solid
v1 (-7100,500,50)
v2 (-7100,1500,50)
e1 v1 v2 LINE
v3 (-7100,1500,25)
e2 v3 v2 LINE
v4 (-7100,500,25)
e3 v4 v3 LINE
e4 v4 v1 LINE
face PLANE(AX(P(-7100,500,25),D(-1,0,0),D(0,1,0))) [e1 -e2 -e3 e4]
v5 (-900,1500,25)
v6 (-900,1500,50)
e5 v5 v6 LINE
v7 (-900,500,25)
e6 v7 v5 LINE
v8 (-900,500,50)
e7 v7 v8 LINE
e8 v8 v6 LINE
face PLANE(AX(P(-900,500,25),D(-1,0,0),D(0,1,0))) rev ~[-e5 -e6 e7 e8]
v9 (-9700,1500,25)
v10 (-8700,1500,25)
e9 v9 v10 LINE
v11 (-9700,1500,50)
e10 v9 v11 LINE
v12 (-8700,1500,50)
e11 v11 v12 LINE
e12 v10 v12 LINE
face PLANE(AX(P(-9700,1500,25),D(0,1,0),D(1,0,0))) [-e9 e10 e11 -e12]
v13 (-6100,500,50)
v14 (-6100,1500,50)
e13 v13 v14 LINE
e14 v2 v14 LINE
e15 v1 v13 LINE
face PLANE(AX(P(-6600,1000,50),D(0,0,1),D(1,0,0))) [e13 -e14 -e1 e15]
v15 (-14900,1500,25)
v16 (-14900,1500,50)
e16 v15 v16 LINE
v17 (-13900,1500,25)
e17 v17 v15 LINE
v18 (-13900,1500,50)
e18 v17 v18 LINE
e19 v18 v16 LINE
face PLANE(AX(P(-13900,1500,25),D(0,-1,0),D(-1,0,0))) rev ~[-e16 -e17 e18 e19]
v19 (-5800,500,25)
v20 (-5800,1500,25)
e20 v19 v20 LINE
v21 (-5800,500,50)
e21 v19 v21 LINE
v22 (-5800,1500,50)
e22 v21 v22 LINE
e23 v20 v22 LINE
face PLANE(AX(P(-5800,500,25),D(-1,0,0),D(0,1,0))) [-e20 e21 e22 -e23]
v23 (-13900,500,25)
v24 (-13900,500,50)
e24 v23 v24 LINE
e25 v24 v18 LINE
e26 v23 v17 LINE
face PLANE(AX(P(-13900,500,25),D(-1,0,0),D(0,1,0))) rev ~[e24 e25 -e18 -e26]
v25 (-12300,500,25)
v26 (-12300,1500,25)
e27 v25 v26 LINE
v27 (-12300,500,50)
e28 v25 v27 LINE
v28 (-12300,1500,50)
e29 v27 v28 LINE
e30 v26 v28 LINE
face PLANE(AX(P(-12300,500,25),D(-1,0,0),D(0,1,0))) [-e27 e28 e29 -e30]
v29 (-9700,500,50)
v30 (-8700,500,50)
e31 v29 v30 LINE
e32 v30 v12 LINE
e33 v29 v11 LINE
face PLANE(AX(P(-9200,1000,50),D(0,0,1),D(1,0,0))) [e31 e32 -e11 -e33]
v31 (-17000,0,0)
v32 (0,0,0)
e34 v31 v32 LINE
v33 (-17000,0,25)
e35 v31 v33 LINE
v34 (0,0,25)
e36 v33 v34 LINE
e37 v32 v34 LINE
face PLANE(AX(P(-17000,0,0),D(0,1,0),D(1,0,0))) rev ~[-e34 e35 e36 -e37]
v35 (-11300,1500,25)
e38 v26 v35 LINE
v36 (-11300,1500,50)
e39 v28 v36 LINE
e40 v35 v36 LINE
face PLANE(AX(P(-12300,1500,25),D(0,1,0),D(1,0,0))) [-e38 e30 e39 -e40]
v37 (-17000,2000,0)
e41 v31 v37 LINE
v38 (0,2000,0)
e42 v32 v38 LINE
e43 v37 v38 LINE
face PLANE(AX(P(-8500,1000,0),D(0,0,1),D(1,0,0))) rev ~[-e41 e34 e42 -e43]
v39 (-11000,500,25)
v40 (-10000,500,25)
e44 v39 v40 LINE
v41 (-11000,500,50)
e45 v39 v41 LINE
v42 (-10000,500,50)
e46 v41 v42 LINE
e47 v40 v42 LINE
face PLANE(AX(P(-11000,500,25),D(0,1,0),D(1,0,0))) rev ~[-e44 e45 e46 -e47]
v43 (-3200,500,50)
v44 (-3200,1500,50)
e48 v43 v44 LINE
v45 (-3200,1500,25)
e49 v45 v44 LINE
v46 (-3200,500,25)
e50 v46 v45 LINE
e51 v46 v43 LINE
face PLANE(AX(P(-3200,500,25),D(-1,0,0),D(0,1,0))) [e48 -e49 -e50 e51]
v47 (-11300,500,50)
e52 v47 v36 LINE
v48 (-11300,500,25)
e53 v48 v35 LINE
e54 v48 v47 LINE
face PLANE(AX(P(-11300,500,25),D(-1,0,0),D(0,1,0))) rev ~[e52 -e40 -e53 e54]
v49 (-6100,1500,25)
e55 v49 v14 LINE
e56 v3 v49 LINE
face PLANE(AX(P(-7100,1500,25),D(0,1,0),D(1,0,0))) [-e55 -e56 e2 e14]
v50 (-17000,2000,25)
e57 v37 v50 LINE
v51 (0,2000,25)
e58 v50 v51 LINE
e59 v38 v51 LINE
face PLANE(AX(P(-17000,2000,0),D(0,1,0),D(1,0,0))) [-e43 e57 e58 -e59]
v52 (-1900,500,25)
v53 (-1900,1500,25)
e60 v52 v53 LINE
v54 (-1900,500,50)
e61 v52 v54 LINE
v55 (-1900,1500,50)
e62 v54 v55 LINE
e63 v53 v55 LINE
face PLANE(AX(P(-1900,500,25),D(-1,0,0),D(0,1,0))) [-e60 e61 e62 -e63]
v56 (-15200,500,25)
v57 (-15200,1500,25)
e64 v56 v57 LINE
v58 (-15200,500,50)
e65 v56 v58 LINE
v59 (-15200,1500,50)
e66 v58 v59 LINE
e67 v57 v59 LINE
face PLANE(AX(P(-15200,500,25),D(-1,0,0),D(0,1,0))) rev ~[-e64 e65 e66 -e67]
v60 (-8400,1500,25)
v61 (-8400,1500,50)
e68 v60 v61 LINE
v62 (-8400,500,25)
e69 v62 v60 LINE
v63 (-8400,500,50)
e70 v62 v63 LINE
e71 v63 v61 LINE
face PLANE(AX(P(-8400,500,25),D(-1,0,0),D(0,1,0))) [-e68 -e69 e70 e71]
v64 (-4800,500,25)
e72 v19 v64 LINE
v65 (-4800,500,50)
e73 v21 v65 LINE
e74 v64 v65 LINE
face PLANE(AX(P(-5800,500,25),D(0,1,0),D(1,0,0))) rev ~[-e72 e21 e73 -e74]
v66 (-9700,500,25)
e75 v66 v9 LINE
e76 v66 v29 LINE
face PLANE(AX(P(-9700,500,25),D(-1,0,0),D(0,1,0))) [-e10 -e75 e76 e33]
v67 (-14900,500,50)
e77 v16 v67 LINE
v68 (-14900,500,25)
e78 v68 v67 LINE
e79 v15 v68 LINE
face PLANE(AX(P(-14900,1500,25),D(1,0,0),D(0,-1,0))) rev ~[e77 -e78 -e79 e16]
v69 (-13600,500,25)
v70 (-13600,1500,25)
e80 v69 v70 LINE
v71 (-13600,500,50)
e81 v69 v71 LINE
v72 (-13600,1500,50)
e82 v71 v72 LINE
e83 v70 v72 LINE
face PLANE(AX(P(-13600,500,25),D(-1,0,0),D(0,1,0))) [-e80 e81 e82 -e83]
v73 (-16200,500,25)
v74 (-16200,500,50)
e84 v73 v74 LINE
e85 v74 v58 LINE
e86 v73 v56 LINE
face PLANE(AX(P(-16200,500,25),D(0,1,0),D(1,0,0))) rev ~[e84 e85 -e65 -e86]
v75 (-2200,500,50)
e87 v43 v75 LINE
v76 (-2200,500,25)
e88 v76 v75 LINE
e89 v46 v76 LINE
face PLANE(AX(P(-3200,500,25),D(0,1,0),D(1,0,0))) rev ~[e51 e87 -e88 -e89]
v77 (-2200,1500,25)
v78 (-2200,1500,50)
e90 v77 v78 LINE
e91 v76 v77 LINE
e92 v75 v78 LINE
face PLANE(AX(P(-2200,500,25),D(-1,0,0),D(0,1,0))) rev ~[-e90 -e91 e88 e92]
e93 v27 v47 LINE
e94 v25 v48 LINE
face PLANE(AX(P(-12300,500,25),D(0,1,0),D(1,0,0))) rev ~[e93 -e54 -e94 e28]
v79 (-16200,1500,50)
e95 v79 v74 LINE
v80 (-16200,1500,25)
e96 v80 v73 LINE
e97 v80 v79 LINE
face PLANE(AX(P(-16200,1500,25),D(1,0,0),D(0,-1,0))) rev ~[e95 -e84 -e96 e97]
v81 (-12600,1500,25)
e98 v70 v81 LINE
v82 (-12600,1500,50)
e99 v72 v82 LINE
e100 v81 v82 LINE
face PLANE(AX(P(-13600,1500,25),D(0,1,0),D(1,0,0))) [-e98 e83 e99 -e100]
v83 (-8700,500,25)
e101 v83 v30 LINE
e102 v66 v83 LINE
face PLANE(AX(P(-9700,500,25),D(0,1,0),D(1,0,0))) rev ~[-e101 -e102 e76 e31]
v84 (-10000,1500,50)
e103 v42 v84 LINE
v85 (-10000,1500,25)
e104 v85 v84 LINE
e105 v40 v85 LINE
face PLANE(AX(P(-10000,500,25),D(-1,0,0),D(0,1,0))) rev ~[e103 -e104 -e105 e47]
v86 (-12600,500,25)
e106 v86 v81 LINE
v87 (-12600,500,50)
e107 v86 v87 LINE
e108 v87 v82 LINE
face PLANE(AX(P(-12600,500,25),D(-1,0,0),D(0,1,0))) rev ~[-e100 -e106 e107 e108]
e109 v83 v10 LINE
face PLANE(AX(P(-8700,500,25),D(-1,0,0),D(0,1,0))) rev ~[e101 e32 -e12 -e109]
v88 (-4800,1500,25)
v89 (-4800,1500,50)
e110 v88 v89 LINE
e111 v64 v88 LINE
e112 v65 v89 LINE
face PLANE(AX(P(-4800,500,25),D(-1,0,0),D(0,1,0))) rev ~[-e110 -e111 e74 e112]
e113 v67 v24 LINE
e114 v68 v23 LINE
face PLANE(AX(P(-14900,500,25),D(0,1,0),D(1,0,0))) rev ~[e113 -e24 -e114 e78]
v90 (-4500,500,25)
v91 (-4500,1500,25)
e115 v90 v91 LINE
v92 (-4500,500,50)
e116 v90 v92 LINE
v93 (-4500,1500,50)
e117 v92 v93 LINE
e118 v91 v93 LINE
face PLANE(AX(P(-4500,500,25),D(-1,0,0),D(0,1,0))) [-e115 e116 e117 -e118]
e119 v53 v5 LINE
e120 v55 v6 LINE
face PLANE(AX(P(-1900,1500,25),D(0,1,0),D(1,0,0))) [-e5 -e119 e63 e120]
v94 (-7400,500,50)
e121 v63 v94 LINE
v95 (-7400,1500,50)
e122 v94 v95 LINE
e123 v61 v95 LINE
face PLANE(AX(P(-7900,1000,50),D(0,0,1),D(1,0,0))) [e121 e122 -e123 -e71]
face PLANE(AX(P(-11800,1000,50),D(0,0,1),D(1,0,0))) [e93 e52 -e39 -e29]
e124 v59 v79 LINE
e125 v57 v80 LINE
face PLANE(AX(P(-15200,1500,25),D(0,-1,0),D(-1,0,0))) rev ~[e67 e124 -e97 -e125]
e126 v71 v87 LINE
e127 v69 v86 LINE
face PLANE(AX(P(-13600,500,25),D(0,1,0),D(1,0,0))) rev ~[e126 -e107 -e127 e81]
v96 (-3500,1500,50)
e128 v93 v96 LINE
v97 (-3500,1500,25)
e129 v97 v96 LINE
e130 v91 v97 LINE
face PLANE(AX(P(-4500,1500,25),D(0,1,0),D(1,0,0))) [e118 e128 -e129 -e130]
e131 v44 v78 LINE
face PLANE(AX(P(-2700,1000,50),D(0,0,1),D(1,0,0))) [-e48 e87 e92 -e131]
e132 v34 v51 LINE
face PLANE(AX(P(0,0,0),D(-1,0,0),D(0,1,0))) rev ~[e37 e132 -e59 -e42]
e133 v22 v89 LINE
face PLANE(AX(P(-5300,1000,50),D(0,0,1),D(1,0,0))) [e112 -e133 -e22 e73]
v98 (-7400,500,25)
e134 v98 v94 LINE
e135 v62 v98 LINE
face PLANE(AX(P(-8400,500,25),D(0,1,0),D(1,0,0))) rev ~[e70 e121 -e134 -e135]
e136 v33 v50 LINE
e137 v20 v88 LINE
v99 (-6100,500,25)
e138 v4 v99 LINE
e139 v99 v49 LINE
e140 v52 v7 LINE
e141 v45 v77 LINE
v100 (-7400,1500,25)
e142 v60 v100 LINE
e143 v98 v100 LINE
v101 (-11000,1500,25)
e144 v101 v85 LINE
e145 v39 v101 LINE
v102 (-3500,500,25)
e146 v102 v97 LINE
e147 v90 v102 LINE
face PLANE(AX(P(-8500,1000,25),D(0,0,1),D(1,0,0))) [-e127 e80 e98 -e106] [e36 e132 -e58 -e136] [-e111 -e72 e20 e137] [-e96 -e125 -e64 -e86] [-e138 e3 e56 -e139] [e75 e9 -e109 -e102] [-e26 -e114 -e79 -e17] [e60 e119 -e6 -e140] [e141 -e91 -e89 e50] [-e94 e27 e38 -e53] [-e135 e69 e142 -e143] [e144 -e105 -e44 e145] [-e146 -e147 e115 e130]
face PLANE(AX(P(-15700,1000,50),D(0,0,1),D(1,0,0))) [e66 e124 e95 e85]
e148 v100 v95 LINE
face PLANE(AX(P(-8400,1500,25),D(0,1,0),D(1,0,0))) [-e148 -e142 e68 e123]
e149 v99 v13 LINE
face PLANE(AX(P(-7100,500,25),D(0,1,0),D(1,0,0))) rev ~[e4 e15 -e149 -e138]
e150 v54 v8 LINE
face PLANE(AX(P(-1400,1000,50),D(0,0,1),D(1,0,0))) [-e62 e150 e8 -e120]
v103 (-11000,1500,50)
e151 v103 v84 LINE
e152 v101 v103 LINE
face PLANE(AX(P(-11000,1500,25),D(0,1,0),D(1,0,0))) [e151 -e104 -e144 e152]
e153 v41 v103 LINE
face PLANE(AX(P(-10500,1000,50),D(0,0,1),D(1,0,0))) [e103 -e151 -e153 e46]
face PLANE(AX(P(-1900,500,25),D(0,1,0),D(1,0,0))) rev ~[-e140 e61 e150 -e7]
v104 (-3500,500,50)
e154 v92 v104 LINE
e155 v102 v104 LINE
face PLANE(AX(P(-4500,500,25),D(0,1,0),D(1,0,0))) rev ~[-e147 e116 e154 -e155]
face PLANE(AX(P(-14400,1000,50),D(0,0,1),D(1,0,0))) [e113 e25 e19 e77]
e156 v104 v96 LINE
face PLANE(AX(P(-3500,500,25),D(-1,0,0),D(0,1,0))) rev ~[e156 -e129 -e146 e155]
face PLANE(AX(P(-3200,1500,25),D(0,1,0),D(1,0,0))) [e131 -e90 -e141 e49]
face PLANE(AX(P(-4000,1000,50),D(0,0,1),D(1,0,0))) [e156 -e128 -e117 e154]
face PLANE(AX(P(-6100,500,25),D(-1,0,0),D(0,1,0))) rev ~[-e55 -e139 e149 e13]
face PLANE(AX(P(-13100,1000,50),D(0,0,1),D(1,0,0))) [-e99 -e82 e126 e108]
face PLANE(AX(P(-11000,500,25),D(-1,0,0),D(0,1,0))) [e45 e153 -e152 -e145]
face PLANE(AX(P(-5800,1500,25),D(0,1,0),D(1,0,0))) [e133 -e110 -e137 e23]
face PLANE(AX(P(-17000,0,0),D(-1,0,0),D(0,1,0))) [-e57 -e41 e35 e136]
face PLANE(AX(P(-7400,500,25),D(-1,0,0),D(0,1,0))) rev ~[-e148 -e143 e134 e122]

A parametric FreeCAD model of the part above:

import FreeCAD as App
import Part
import Sketcher
Q = App.Units.Quantity


def add_polygon(sketch, points):
    """Adds a closed chain of lines whose ends are joined by coincident constraints."""
    first, n = sketch.GeometryCount, len(points)
    for a, b in zip(points, points[1:] + points[:1]):
        sketch.addGeometry(Part.LineSegment(App.Vector(*a, 0), App.Vector(*b, 0)), False)
    for i in range(n):
        sketch.addConstraint(Sketcher.Constraint("Coincident", first + i, 2, first + (i + 1) % n, 1))

doc = App.newDocument("Part")
body = doc.addObject("PartDesign::Body", "Body")

sketch1 = body.newObject("Sketcher::SketchObject", "Sketch")
sketch1.AttachmentSupport = (doc.getObject("XY_Plane"), [""])
sketch1.MapMode = "FlatFace"
add_polygon(sketch1, [(-17000, 2000), (-17000, 0), (0, 0), (0, 2000)])
sketch1.addConstraint([
    Sketcher.Constraint("Vertical", 0),
    Sketcher.Constraint("Horizontal", 1),
    Sketcher.Constraint("Vertical", 2),
    Sketcher.Constraint("Horizontal", 3),
    Sketcher.Constraint("Coincident", 1, 2, -1, 1),
    Sketcher.Constraint("DistanceX", 1, 1, 1, 2, Q("17000 mm")),
    Sketcher.Constraint("DistanceY", 0, 2, 0, 1, Q("2000 mm")),
])
pad1 = body.newObject("PartDesign::Pad", "Pad")
pad1.Profile = sketch1
pad1.Length = 25

sketch2 = body.newObject("Sketcher::SketchObject", "Sketch001")
sketch2.AttachmentSupport = (doc.getObject("XY_Plane"), [""])
sketch2.MapMode = "FlatFace"
sketch2.AttachmentOffset = App.Placement(App.Vector(0, 0, 25), App.Rotation())
add_polygon(sketch2, [(-16200, 1500), (-16200, 500), (-15200, 500), (-15200, 1500)])
add_polygon(sketch2, [(-14900, 1500), (-14900, 500), (-13900, 500), (-13900, 1500)])
add_polygon(sketch2, [(-13600, 1500), (-13600, 500), (-12600, 500), (-12600, 1500)])
add_polygon(sketch2, [(-12300, 1500), (-12300, 500), (-11300, 500), (-11300, 1500)])
add_polygon(sketch2, [(-11000, 1500), (-11000, 500), (-10000, 500), (-10000, 1500)])
add_polygon(sketch2, [(-9700, 1500), (-9700, 500), (-8700, 500), (-8700, 1500)])
add_polygon(sketch2, [(-8400, 1500), (-8400, 500), (-7400, 500), (-7400, 1500)])
add_polygon(sketch2, [(-7100, 1500), (-7100, 500), (-6100, 500), (-6100, 1500)])
add_polygon(sketch2, [(-5800, 1500), (-5800, 500), (-4800, 500), (-4800, 1500)])
add_polygon(sketch2, [(-4500, 1500), (-4500, 500), (-3500, 500), (-3500, 1500)])
add_polygon(sketch2, [(-3200, 1500), (-3200, 500), (-2200, 500), (-2200, 1500)])
add_polygon(sketch2, [(-1900, 1500), (-1900, 500), (-900, 500), (-900, 1500)])
sketch2.addConstraint([
    Sketcher.Constraint("Vertical", 0),
    Sketcher.Constraint("Horizontal", 1),
    Sketcher.Constraint("Vertical", 2),
    Sketcher.Constraint("Horizontal", 3),
    Sketcher.Constraint("Vertical", 4),
    Sketcher.Constraint("Horizontal", 5),
    Sketcher.Constraint("Vertical", 6),
    Sketcher.Constraint("Horizontal", 7),
    Sketcher.Constraint("Vertical", 8),
    Sketcher.Constraint("Horizontal", 9),
    Sketcher.Constraint("Vertical", 10),
    Sketcher.Constraint("Horizontal", 11),
    Sketcher.Constraint("Vertical", 12),
    Sketcher.Constraint("Horizontal", 13),
    Sketcher.Constraint("Vertical", 14),
    Sketcher.Constraint("Horizontal", 15),
    Sketcher.Constraint("Vertical", 16),
    Sketcher.Constraint("Horizontal", 17),
    Sketcher.Constraint("Vertical", 18),
    Sketcher.Constraint("Horizontal", 19),
    Sketcher.Constraint("Vertical", 20),
    Sketcher.Constraint("Horizontal", 21),
    Sketcher.Constraint("Vertical", 22),
    Sketcher.Constraint("Horizontal", 23),
    Sketcher.Constraint("Vertical", 24),
    Sketcher.Constraint("Horizontal", 25),
    Sketcher.Constraint("Vertical", 26),
    Sketcher.Constraint("Horizontal", 27),
    Sketcher.Constraint("Vertical", 28),
    Sketcher.Constraint("Horizontal", 29),
    Sketcher.Constraint("Vertical", 30),
    Sketcher.Constraint("Horizontal", 31),
    Sketcher.Constraint("Vertical", 32),
    Sketcher.Constraint("Horizontal", 33),
    Sketcher.Constraint("Vertical", 34),
    Sketcher.Constraint("Horizontal", 35),
    Sketcher.Constraint("Vertical", 36),
    Sketcher.Constraint("Horizontal", 37),
    Sketcher.Constraint("Vertical", 38),
    Sketcher.Constraint("Horizontal", 39),
    Sketcher.Constraint("Vertical", 40),
    Sketcher.Constraint("Horizontal", 41),
    Sketcher.Constraint("Vertical", 42),
    Sketcher.Constraint("Horizontal", 43),
    Sketcher.Constraint("Vertical", 44),
    Sketcher.Constraint("Horizontal", 45),
    Sketcher.Constraint("Vertical", 46),
    Sketcher.Constraint("Horizontal", 47),
    Sketcher.Constraint("Horizontal", 1, 2, 4, 2),
    Sketcher.Constraint("Horizontal", 3, 2, 6, 2),
    Sketcher.Constraint("Horizontal", 5, 2, 8, 2),
    Sketcher.Constraint("Horizontal", 7, 2, 10, 2),
    Sketcher.Constraint("Horizontal", 9, 2, 12, 2),
    Sketcher.Constraint("Horizontal", 11, 2, 14, 2),
    Sketcher.Constraint("Horizontal", 13, 2, 16, 2),
    Sketcher.Constraint("Horizontal", 15, 2, 18, 2),
    Sketcher.Constraint("Horizontal", 17, 2, 20, 2),
    Sketcher.Constraint("Horizontal", 19, 2, 22, 2),
    Sketcher.Constraint("Horizontal", 21, 2, 24, 2),
    Sketcher.Constraint("Horizontal", 23, 2, 26, 2),
    Sketcher.Constraint("Horizontal", 25, 2, 28, 2),
    Sketcher.Constraint("Horizontal", 27, 2, 30, 2),
    Sketcher.Constraint("Horizontal", 29, 2, 32, 2),
    Sketcher.Constraint("Horizontal", 31, 2, 34, 2),
    Sketcher.Constraint("Horizontal", 33, 2, 36, 2),
    Sketcher.Constraint("Horizontal", 35, 2, 38, 2),
    Sketcher.Constraint("Horizontal", 37, 2, 40, 2),
    Sketcher.Constraint("Horizontal", 39, 2, 42, 2),
    Sketcher.Constraint("Horizontal", 41, 2, 44, 2),
    Sketcher.Constraint("Horizontal", 43, 2, 46, 2),
    Sketcher.Constraint("Equal", 3, 5),
    Sketcher.Constraint("Equal", 7, 9),
    Sketcher.Constraint("Equal", 11, 13),
    Sketcher.Constraint("Equal", 15, 17),
    Sketcher.Constraint("Equal", 19, 21),
    Sketcher.Constraint("Equal", 23, 25),
    Sketcher.Constraint("Equal", 27, 29),
    Sketcher.Constraint("Equal", 31, 33),
    Sketcher.Constraint("Equal", 35, 37),
    Sketcher.Constraint("Equal", 39, 41),
    Sketcher.Constraint("Equal", 43, 45),
    Sketcher.Constraint("Equal", 47, 0),
    Sketcher.Constraint("DistanceX", 1, 1, 1, 2, Q("1000 mm")),
    Sketcher.Constraint("DistanceX", 0, 2, -1, 1, Q("16200 mm")),
    Sketcher.Constraint("DistanceY", -1, 1, 0, 2, Q("500 mm")),
    Sketcher.Constraint("DistanceX", 4, 2, -1, 1, Q("14900 mm")),
    Sketcher.Constraint("DistanceX", 8, 2, -1, 1, Q("13600 mm")),
    Sketcher.Constraint("DistanceX", 12, 2, -1, 1, Q("12300 mm")),
    Sketcher.Constraint("DistanceX", 16, 2, -1, 1, Q("11000 mm")),
    Sketcher.Constraint("DistanceX", 20, 2, -1, 1, Q("9700 mm")),
    Sketcher.Constraint("DistanceX", 24, 2, -1, 1, Q("8400 mm")),
    Sketcher.Constraint("DistanceX", 28, 2, -1, 1, Q("7100 mm")),
    Sketcher.Constraint("DistanceX", 32, 2, -1, 1, Q("5800 mm")),
    Sketcher.Constraint("DistanceX", 36, 2, -1, 1, Q("4500 mm")),
    Sketcher.Constraint("DistanceX", 40, 2, -1, 1, Q("3200 mm")),
    Sketcher.Constraint("DistanceX", 44, 2, -1, 1, Q("1900 mm")),
])
pad2 = body.newObject("PartDesign::Pad", "Pad001")
pad2.Profile = sketch2
pad2.Length = 25

doc.recompute()
